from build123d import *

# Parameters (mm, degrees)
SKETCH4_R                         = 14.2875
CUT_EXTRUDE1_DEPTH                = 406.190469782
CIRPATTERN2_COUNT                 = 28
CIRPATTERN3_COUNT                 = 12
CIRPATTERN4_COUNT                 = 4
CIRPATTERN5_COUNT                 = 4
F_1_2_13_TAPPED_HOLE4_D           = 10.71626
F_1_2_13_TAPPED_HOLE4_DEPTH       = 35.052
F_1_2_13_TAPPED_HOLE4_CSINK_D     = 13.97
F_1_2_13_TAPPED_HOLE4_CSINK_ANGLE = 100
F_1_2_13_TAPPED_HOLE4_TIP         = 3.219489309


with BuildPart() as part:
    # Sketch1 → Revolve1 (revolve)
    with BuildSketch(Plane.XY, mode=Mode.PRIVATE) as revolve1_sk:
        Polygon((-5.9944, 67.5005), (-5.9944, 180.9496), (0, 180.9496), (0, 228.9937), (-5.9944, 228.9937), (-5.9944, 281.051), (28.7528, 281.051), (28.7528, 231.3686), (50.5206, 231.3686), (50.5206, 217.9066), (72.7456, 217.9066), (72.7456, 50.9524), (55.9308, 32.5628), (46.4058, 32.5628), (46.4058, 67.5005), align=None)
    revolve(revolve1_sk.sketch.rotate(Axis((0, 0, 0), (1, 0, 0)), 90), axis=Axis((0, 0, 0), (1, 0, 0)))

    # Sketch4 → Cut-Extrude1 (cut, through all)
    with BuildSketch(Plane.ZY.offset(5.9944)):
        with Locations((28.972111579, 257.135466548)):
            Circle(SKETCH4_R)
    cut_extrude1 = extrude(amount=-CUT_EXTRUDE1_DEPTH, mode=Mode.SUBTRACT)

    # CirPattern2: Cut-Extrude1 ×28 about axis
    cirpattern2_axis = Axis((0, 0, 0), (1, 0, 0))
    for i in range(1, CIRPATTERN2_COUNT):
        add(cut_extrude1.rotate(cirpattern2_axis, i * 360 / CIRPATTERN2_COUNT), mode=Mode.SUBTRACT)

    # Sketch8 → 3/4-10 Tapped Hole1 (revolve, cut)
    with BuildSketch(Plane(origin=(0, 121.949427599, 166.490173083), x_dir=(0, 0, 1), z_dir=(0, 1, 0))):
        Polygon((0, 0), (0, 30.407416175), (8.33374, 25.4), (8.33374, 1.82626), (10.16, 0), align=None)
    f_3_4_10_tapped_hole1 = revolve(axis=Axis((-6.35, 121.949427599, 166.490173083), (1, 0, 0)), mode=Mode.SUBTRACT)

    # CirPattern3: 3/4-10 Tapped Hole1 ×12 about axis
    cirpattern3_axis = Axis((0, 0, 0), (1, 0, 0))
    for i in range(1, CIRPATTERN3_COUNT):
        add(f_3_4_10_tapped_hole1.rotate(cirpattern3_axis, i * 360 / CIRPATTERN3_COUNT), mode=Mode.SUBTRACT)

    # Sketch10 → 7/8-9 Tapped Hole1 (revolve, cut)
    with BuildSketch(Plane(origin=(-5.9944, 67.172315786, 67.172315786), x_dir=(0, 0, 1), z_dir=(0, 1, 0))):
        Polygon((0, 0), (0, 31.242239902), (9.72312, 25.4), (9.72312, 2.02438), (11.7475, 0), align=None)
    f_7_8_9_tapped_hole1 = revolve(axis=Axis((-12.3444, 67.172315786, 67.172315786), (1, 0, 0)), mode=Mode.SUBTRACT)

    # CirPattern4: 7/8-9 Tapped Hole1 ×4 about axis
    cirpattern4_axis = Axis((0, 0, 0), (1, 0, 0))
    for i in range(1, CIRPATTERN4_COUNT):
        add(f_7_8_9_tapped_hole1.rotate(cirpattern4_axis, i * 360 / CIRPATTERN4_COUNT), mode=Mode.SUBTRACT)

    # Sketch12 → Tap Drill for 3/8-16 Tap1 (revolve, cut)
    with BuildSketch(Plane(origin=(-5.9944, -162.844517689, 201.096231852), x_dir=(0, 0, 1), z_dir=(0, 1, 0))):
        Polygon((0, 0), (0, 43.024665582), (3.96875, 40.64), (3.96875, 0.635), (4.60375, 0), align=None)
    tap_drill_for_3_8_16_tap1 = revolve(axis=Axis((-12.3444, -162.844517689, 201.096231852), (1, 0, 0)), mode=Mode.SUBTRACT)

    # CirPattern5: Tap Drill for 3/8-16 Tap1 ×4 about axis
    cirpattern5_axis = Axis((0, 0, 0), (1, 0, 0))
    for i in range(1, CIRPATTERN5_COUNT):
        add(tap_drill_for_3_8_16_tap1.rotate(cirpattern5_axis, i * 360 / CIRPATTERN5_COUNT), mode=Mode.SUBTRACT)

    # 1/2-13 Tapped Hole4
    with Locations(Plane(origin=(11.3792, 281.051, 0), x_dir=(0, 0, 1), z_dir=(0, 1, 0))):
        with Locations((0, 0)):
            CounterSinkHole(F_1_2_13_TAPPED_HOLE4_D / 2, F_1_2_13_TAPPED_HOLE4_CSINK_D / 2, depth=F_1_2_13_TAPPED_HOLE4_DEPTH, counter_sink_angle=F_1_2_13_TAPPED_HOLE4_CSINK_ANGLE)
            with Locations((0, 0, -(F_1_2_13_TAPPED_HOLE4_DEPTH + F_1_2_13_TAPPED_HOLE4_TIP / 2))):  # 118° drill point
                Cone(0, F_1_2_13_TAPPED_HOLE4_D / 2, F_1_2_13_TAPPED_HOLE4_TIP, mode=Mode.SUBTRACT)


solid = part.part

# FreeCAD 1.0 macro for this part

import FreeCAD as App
import Part
import Sketcher
from FreeCAD import Vector
Q = App.Units.Quantity

doc = App.newDocument("Part")
body = doc.addObject("PartDesign::Body", "Body")

# Sketch on XY plane
sketch1 = body.newObject("Sketcher::SketchObject", "Sketch")
sketch1.AttachmentSupport = (doc.getObject("XY_Plane"), [""])
sketch1.MapMode = "FlatFace"
sketch1.addGeometry([
    Part.LineSegment(Vector(-5.9944, 180.9496, 0), Vector(-5.9944, 67.5005, 0)),  # 0
    Part.LineSegment(Vector(-5.9944, 67.5005, 0), Vector(46.4058, 67.5005, 0)),  # 1
    Part.LineSegment(Vector(46.4058, 67.5005, 0), Vector(46.4058, 32.5628, 0)),  # 2
    Part.LineSegment(Vector(46.4058, 32.5628, 0), Vector(55.9308, 32.5628, 0)),  # 3
    Part.LineSegment(Vector(55.9308, 32.5628, 0), Vector(72.7456, 50.9524, 0)),  # 4
    Part.LineSegment(Vector(72.7456, 50.9524, 0), Vector(72.7456, 217.9066, 0)),  # 5
    Part.LineSegment(Vector(72.7456, 217.9066, 0), Vector(50.5206, 217.9066, 0)),  # 6
    Part.LineSegment(Vector(50.5206, 217.9066, 0), Vector(50.5206, 231.3686, 0)),  # 7
    Part.LineSegment(Vector(50.5206, 231.3686, 0), Vector(28.7528, 231.3686, 0)),  # 8
    Part.LineSegment(Vector(28.7528, 231.3686, 0), Vector(28.7528, 281.051, 0)),  # 9
    Part.LineSegment(Vector(28.7528, 281.051, 0), Vector(-5.9944, 281.051, 0)),  # 10
    Part.LineSegment(Vector(-5.9944, 281.051, 0), Vector(-5.9944, 228.9937, 0)),  # 11
    Part.LineSegment(Vector(-5.9944, 228.9937, 0), Vector(0, 228.9937, 0)),  # 12
    Part.LineSegment(Vector(0, 228.9937, 0), Vector(0, 180.9496, 0)),  # 13
    Part.LineSegment(Vector(0, 180.9496, 0), Vector(-5.9944, 180.9496, 0)),  # 14
], False)
sketch1.addConstraint([
    Sketcher.Constraint("Coincident", 0, 2, 1, 1),
    Sketcher.Constraint("Coincident", 1, 2, 2, 1),
    Sketcher.Constraint("Coincident", 2, 2, 3, 1),
    Sketcher.Constraint("Coincident", 3, 2, 4, 1),
    Sketcher.Constraint("Coincident", 4, 2, 5, 1),
    Sketcher.Constraint("Coincident", 5, 2, 6, 1),
    Sketcher.Constraint("Coincident", 6, 2, 7, 1),
    Sketcher.Constraint("Coincident", 7, 2, 8, 1),
    Sketcher.Constraint("Coincident", 8, 2, 9, 1),
    Sketcher.Constraint("Coincident", 9, 2, 10, 1),
    Sketcher.Constraint("Coincident", 10, 2, 11, 1),
    Sketcher.Constraint("Coincident", 11, 2, 12, 1),
    Sketcher.Constraint("Coincident", 12, 2, 13, 1),
    Sketcher.Constraint("Coincident", 13, 2, 14, 1),
    Sketcher.Constraint("Coincident", 14, 2, 0, 1),
    Sketcher.Constraint("Vertical", 0),
    Sketcher.Constraint("Horizontal", 1),
    Sketcher.Constraint("Vertical", 2),
    Sketcher.Constraint("Horizontal", 3),
    Sketcher.Constraint("Vertical", 5),
    Sketcher.Constraint("Horizontal", 6),
    Sketcher.Constraint("Vertical", 7),
    Sketcher.Constraint("Horizontal", 8),
    Sketcher.Constraint("Vertical", 9),
    Sketcher.Constraint("Horizontal", 10),
    Sketcher.Constraint("Vertical", 11),
    Sketcher.Constraint("Horizontal", 12),
    Sketcher.Constraint("Vertical", 13),
    Sketcher.Constraint("Horizontal", 14),
    Sketcher.Constraint("PointOnObject", 12, 2, -2),
    Sketcher.Constraint("Vertical", 0, 2, 10, 2),
    Sketcher.Constraint("DistanceY", 7, 1, 7, 2, Q("0.53 in")),
    Sketcher.Constraint("DistanceX", 0, 2, 4, 2, Q("3.1 in")),
    Sketcher.Constraint("DistanceX", 1, 1, 1, 2, Q("2.063 in")),
    Sketcher.Constraint("DistanceX", 3, 1, 3, 2, Q("0.375 in")),
    Sketcher.Constraint("DistanceX", 6, 2, 6, 1, Q("0.875 in")),
    Sketcher.Constraint("DistanceX", 8, 2, 8, 1, Q("0.857 in")),
    Sketcher.Constraint("DistanceX", 12, 1, 12, 2, Q("0.236 in")),
    Sketcher.Constraint("DistanceY", 5, 1, 5, 2, Q("6.573 in")),
    Sketcher.Constraint("DistanceY", 9, 1, 9, 2, Q("1.956 in")),
    Sketcher.Constraint("DistanceY", 0, 2, 0, 1, Q("4.4665 in")),
    Sketcher.Constraint("DistanceY", 2, 2, 2, 1, Q("1.3755 in")),
    Sketcher.Constraint("DistanceY", 11, 2, 11, 1, Q("2.0495 in")),
    Sketcher.Constraint("DistanceY", 13, 2, 13, 1, Q("1.8915 in")),
    Sketcher.Constraint("DistanceY", -1, 1, 2, 2, Q("1.282 in")),
])
revolution = body.newObject("PartDesign::Revolution", "Revolution")
revolution.Profile = sketch1
revolution.ReferenceAxis = (sketch1, ["H_Axis"])
revolution.Angle = 360

# Sketch on YZ plane
sketch2 = body.newObject("Sketcher::SketchObject", "Sketch001")
sketch2.AttachmentSupport = (doc.getObject("YZ_Plane"), [""])
sketch2.MapMode = "FlatFace"
sketch2.AttachmentOffset = App.Placement(Vector(0, 0, -0.236 * 25.4), App.Rotation())
sketch2.addGeometry(Part.Circle(Vector(257.135467, 28.972112, 0), Vector(0, 0, 1), 14.2875), False)
sketch2.addConstraint([
    Sketcher.Constraint("Diameter", 0, Q("1.125 in")),
    Sketcher.Constraint("DistanceY", -1, 1, 0, 3, Q("28.972112 mm")),
    Sketcher.Constraint("DistanceX", -1, 1, 0, 3, Q("257.135467 mm")),
])
pocket1 = body.newObject("PartDesign::Pocket", "Pocket")
pocket1.Profile = sketch2
pocket1.Type = "ThroughAll"
pocket1.Reversed = True
doc.recompute()

polarpattern = body.newObject("PartDesign::PolarPattern", "PolarPattern")
polarpattern.Originals = [pocket1]
polarpattern.Axis = (doc.getObject("X_Axis"), [""])
polarpattern.Angle = 360
polarpattern.Occurrences = 28
body.Tip = polarpattern

# Sketch on XZ plane
sketch3 = body.newObject("Sketcher::SketchObject", "Sketch002")
sketch3.AttachmentSupport = (doc.getObject("XZ_Plane"), [""])
sketch3.MapMode = "FlatFace"
sketch3.AttachmentOffset = App.Placement(Vector(0, 0, -121.949428), App.Rotation())
sketch3.addGeometry([
    Part.LineSegment(Vector(30.407416, 166.490173, 0), Vector(0, 166.490173, 0)),  # 0
    Part.LineSegment(Vector(0, 166.490173, 0), Vector(0, 176.650173, 0)),  # 1
    Part.LineSegment(Vector(0, 176.650173, 0), Vector(1.82626, 174.823913, 0)),  # 2
    Part.LineSegment(Vector(1.82626, 174.823913, 0), Vector(25.4, 174.823913, 0)),  # 3
    Part.LineSegment(Vector(25.4, 174.823913, 0), Vector(30.407416, 166.490173, 0)),  # 4
], False)
sketch3.addGeometry(Part.LineSegment(Vector(0, 166.490173, 0), Vector(30.407416, 166.490173, 0)), True)  # axis
sketch3.addConstraint([
    Sketcher.Constraint("Coincident", 0, 2, 1, 1),
    Sketcher.Constraint("Coincident", 1, 2, 2, 1),
    Sketcher.Constraint("Coincident", 2, 2, 3, 1),
    Sketcher.Constraint("Coincident", 3, 2, 4, 1),
    Sketcher.Constraint("Coincident", 4, 2, 0, 1),
    Sketcher.Constraint("Horizontal", 0),
    Sketcher.Constraint("Vertical", 1),
    Sketcher.Constraint("Horizontal", 3),
    Sketcher.Constraint("Horizontal", 5),
    Sketcher.Constraint("Coincident", 5, 1, 0, 2),
    Sketcher.Constraint("PointOnObject", 0, 2, -2),
    Sketcher.Constraint("Equal", 0, 5),
    Sketcher.Constraint("DistanceY", 1, 1, 1, 2, Q("0.4 in")),
    Sketcher.Constraint("DistanceX", -1, 1, 3, 2, Q("1 in")),
    Sketcher.Constraint("Angle", 2, Q("-45 deg")),
    Sketcher.Constraint("Angle", 4, Q("-59 deg")),
    Sketcher.Constraint("DistanceX", 3, 1, 3, 2, Q("0.9281 in")),
    Sketcher.Constraint("DistanceY", -1, 1, 0, 2, Q("166.490173 mm")),
])
groove = body.newObject("PartDesign::Groove", "Groove")
groove.Profile = sketch3
groove.ReferenceAxis = (sketch3, ["Axis0"])
groove.Angle = 360
doc.recompute()

polarpattern2 = body.newObject("PartDesign::PolarPattern", "PolarPattern001")
polarpattern2.Originals = [groove]
polarpattern2.Axis = (doc.getObject("X_Axis"), [""])
polarpattern2.Angle = 360
polarpattern2.Occurrences = 12
body.Tip = polarpattern2

# Sketch on XZ plane
sketch4 = body.newObject("Sketcher::SketchObject", "Sketch003")
sketch4.AttachmentSupport = (doc.getObject("XZ_Plane"), [""])
sketch4.MapMode = "FlatFace"
sketch4.AttachmentOffset = App.Placement(Vector(0, 0, -67.172316), App.Rotation())
sketch4.addGeometry([
    Part.LineSegment(Vector(25.24784, 67.172316, 0), Vector(-5.9944, 67.172316, 0)),  # 0
    Part.LineSegment(Vector(-5.9944, 67.172316, 0), Vector(-5.9944, 78.919816, 0)),  # 1
    Part.LineSegment(Vector(-5.9944, 78.919816, 0), Vector(-3.97002, 76.895436, 0)),  # 2
    Part.LineSegment(Vector(-3.97002, 76.895436, 0), Vector(19.4056, 76.895436, 0)),  # 3
    Part.LineSegment(Vector(19.4056, 76.895436, 0), Vector(25.24784, 67.172316, 0)),  # 4
], False)
sketch4.addGeometry(Part.LineSegment(Vector(-5.9944, 67.172316, 0), Vector(25.24784, 67.172316, 0)), True)  # axis
sketch4.addConstraint([
    Sketcher.Constraint("Coincident", 0, 2, 1, 1),
    Sketcher.Constraint("Coincident", 1, 2, 2, 1),
    Sketcher.Constraint("Coincident", 2, 2, 3, 1),
    Sketcher.Constraint("Coincident", 3, 2, 4, 1),
    Sketcher.Constraint("Coincident", 4, 2, 0, 1),
    Sketcher.Constraint("Horizontal", 0),
    Sketcher.Constraint("Vertical", 1),
    Sketcher.Constraint("Horizontal", 3),
    Sketcher.Constraint("Horizontal", 5),
    Sketcher.Constraint("Coincident", 5, 1, 0, 2),
    Sketcher.Constraint("Equal", 0, 5),
    Sketcher.Constraint("Angle", 2, Q("-45 deg")),
    Sketcher.Constraint("Angle", 4, Q("-59 deg")),
    Sketcher.Constraint("DistanceX", 1, 2, 3, 2, Q("1 in")),
    Sketcher.Constraint("DistanceX", 3, 1, 3, 2, Q("0.9203 in")),
    Sketcher.Constraint("DistanceY", 1, 1, 1, 2, Q("0.4625 in")),
    Sketcher.Constraint("DistanceX", 0, 2, -1, 1, Q("0.236 in")),
    Sketcher.Constraint("DistanceY", -1, 1, 0, 2, Q("67.172316 mm")),
])
groove2 = body.newObject("PartDesign::Groove", "Groove001")
groove2.Profile = sketch4
groove2.ReferenceAxis = (sketch4, ["Axis0"])
groove2.Angle = 360
doc.recompute()

polarpattern3 = body.newObject("PartDesign::PolarPattern", "PolarPattern002")
polarpattern3.Originals = [groove2]
polarpattern3.Axis = (doc.getObject("X_Axis"), [""])
polarpattern3.Angle = 360
polarpattern3.Occurrences = 4
body.Tip = polarpattern3

# Sketch on XZ plane
sketch5 = body.newObject("Sketcher::SketchObject", "Sketch004")
sketch5.AttachmentSupport = (doc.getObject("XZ_Plane"), [""])
sketch5.MapMode = "FlatFace"
sketch5.AttachmentOffset = App.Placement(Vector(0, 0, 162.844518), App.Rotation())
sketch5.addGeometry([
    Part.LineSegment(Vector(37.030266, 201.096232, 0), Vector(-5.9944, 201.096232, 0)),  # 0
    Part.LineSegment(Vector(-5.9944, 201.096232, 0), Vector(-5.9944, 205.699982, 0)),  # 1
    Part.LineSegment(Vector(-5.9944, 205.699982, 0), Vector(-5.3594, 205.064982, 0)),  # 2
    Part.LineSegment(Vector(-5.3594, 205.064982, 0), Vector(34.6456, 205.064982, 0)),  # 3
    Part.LineSegment(Vector(34.6456, 205.064982, 0), Vector(37.030266, 201.096232, 0)),  # 4
], False)
sketch5.addGeometry(Part.LineSegment(Vector(-5.9944, 201.096232, 0), Vector(37.030266, 201.096232, 0)), True)  # axis
sketch5.addConstraint([
    Sketcher.Constraint("Coincident", 0, 2, 1, 1),
    Sketcher.Constraint("Coincident", 1, 2, 2, 1),
    Sketcher.Constraint("Coincident", 2, 2, 3, 1),
    Sketcher.Constraint("Coincident", 3, 2, 4, 1),
    Sketcher.Constraint("Coincident", 4, 2, 0, 1),
    Sketcher.Constraint("Horizontal", 0),
    Sketcher.Constraint("Vertical", 1),
    Sketcher.Constraint("Horizontal", 3),
    Sketcher.Constraint("Horizontal", 5),
    Sketcher.Constraint("Coincident", 5, 1, 0, 2),
    Sketcher.Constraint("Equal", 0, 5),
    Sketcher.Constraint("Angle", 2, Q("-45 deg")),
    Sketcher.Constraint("Angle", 4, Q("-59 deg")),
    Sketcher.Constraint("DistanceX", 1, 2, 3, 2, Q("1.6 in")),
    Sketcher.Constraint("DistanceX", 3, 1, 3, 2, Q("1.575 in")),
    Sketcher.Constraint("DistanceX", 0, 2, -1, 1, Q("0.236 in")),
    Sketcher.Constraint("DistanceY", 0, 2, 2, 2, Q("0.15625 in")),
    Sketcher.Constraint("DistanceY", -1, 1, 0, 2, Q("201.096232 mm")),
])
groove3 = body.newObject("PartDesign::Groove", "Groove002")
groove3.Profile = sketch5
groove3.ReferenceAxis = (sketch5, ["Axis0"])
groove3.Angle = 360
doc.recompute()

polarpattern4 = body.newObject("PartDesign::PolarPattern", "PolarPattern003")
polarpattern4.Originals = [groove3]
polarpattern4.Axis = (doc.getObject("X_Axis"), [""])
polarpattern4.Angle = 360
polarpattern4.Occurrences = 4
body.Tip = polarpattern4

# Sketch on XZ plane
sketch6 = body.newObject("Sketcher::SketchObject", "Sketch005")
sketch6.AttachmentSupport = (doc.getObject("XZ_Plane"), [""])
sketch6.MapMode = "FlatFace"
sketch6.AttachmentOffset = App.Placement(Vector(0, 0, -11.065 * 25.4), App.Rotation())
sketch6.addGeometry(Part.Circle(Vector(11.3792, 0, 0), Vector(0, 0, 1), 5.35813), False)
sketch6.addConstraint([
    Sketcher.Constraint("PointOnObject", 0, 3, -1),
    Sketcher.Constraint("Diameter", 0, Q("0.4219 in")),
    Sketcher.Constraint("DistanceX", -1, 1, 0, 3, Q("0.448 in")),
])
doc.recompute()
hole = body.newObject("PartDesign::Hole", "Hole")
hole.Profile = sketch6
hole.ThreadType = "None"
hole.Diameter = Q("0.4219 in")
hole.DepthType = "Dimension"
hole.Depth = Q("1.38 in")
hole.DrillPoint = "Angled"
hole.DrillPointAngle = 118
hole.HoleCutType = "Countersink"
hole.HoleCutDiameter = Q("0.55 in")
hole.HoleCutCountersinkAngle = 100
hole.Reversed = True

doc.recompute()
